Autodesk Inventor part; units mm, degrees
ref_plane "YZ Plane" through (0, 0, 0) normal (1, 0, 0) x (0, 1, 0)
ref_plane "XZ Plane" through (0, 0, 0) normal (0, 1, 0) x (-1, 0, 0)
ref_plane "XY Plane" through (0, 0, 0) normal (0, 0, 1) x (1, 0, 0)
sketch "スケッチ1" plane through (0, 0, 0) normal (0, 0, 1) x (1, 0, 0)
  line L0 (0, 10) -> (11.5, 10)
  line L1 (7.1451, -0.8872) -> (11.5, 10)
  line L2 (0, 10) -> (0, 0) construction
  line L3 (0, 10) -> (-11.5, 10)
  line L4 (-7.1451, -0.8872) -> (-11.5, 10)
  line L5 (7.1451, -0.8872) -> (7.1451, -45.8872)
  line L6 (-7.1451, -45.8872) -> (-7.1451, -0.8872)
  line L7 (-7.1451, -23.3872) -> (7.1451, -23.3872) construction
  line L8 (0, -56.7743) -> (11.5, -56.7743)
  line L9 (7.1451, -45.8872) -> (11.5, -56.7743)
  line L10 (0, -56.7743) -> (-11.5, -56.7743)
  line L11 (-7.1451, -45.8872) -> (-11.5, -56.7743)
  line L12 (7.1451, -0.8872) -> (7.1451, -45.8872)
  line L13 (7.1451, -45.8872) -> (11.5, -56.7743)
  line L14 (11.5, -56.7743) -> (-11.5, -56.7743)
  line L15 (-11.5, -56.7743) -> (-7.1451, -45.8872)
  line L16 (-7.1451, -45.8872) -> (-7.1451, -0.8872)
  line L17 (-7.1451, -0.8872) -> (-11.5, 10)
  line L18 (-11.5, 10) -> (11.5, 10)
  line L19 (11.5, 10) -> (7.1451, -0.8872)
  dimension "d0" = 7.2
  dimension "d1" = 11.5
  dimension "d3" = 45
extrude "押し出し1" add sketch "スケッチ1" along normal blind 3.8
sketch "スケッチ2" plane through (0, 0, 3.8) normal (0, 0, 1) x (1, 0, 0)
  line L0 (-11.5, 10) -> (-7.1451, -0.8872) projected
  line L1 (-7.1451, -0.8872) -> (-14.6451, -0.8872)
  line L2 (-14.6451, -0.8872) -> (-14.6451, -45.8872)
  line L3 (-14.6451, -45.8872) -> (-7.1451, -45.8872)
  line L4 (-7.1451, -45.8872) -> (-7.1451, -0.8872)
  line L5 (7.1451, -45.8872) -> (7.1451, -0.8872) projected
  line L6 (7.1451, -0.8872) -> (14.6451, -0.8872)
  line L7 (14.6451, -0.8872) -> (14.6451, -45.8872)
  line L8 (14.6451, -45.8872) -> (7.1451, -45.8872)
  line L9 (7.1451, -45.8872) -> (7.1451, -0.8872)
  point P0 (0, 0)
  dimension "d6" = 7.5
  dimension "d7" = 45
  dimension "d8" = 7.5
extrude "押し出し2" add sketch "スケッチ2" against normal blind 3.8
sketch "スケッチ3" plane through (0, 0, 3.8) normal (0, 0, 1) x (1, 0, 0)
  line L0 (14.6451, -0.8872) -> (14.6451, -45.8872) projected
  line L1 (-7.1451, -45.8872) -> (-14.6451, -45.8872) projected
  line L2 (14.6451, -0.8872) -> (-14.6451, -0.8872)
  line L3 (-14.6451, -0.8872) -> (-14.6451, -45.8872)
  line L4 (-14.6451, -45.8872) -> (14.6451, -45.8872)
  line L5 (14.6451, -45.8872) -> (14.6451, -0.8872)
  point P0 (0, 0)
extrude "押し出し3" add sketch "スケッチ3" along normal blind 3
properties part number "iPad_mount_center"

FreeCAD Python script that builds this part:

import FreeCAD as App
import Part
import Sketcher

V = App.Vector


def add_polygon(sketch, points):
    """Adds a closed chain of lines whose ends are joined by coincident constraints."""
    first, n = sketch.GeometryCount, len(points)
    for a, b in zip(points, points[1:] + points[:1]):
        sketch.addGeometry(Part.LineSegment(App.Vector(*a, 0), App.Vector(*b, 0)), False)
    for i in range(n):
        sketch.addConstraint(Sketcher.Constraint("Coincident", first + i, 2, first + (i + 1) % n, 1))

doc = App.newDocument("Part")
body = doc.addObject("PartDesign::Body", "Body")

sketch1 = body.newObject("Sketcher::SketchObject", "Sketch")
sketch1.AttachmentSupport = (doc.getObject("XY_Plane"), [""])
sketch1.MapMode = "FlatFace"
add_polygon(sketch1, [(12, 10), (-12, 10), (-7, -1), (-7, -46), (-12, -57), (12, -57), (7, -46), (7, -1)])
sketch1.addConstraint([
    Sketcher.Constraint("Horizontal", 0),
    Sketcher.Constraint("Vertical", 2),
    Sketcher.Constraint("Horizontal", 4),
    Sketcher.Constraint("Vertical", 6),
    Sketcher.Constraint("Symmetric", 2, 2, 5, 2, -2),
    Sketcher.Constraint("Parallel", 1, 5),
    Sketcher.Constraint("Parallel", 3, 7),
    Sketcher.Constraint("Horizontal", 1, 2, 6, 2),
    Sketcher.Constraint("Vertical", 0, 2, 3, 2),
    Sketcher.Constraint("Vertical", 4, 2, 7, 2),
    Sketcher.Constraint("DistanceY", 2, 2, 2, 1, 45.0),
    Sketcher.Constraint("DistanceX", 0, 2, -1, 1, 11.5),
    Sketcher.Constraint("DistanceY", -1, 1, 0, 2, 10.0),
    Sketcher.Constraint("Distance", 1, 11.726),
    Sketcher.Constraint("DistanceX", 1, 2, -1, 1, 7.145),
])
pad1 = body.newObject("PartDesign::Pad", "Pad")
pad1.Profile = sketch1
pad1.Length = 3.8

sketch2 = body.newObject("Sketcher::SketchObject", "Sketch001")
sketch2.AttachmentSupport = (doc.getObject("XY_Plane"), [""])
sketch2.MapMode = "FlatFace"
sketch2.AttachmentOffset = App.Placement(V(0, 0, 3.8), App.Rotation())
add_polygon(sketch2, [(-7, -46), (-7, -1), (-15, -1), (-15, -46)])
add_polygon(sketch2, [(7, -1), (7, -46), (15, -46), (15, -1)])
sketch2.addConstraint([
    Sketcher.Constraint("Vertical", 0),
    Sketcher.Constraint("Horizontal", 1),
    Sketcher.Constraint("Vertical", 2),
    Sketcher.Constraint("Horizontal", 3),
    Sketcher.Constraint("Vertical", 4),
    Sketcher.Constraint("Horizontal", 5),
    Sketcher.Constraint("Vertical", 6),
    Sketcher.Constraint("Horizontal", 7),
    Sketcher.Constraint("Symmetric", 3, 2, 4, 2, -2),
    Sketcher.Constraint("Symmetric", 1, 2, 6, 2, -2),
    Sketcher.Constraint("DistanceY", 0, 1, 0, 2, 45.0),
    Sketcher.Constraint("DistanceX", 1, 2, 1, 1, 7.5),
    Sketcher.Constraint("DistanceX", 0, 2, -1, 1, 7.145),
    Sketcher.Constraint("DistanceY", 0, 2, -1, 1, 0.8872),
])
pad2 = body.newObject("PartDesign::Pad", "Pad001")
pad2.Profile = sketch2
pad2.Length = 3.8
pad2.Reversed = True

sketch3 = body.newObject("Sketcher::SketchObject", "Sketch002")
sketch3.AttachmentSupport = (doc.getObject("XY_Plane"), [""])
sketch3.MapMode = "FlatFace"
sketch3.AttachmentOffset = App.Placement(V(0, 0, 3.8), App.Rotation())
add_polygon(sketch3, [(15, -46), (15, -1), (-15, -1), (-15, -46)])
sketch3.addConstraint([
    Sketcher.Constraint("Vertical", 0),
    Sketcher.Constraint("Horizontal", 1),
    Sketcher.Constraint("Vertical", 2),
    Sketcher.Constraint("Horizontal", 3),
    Sketcher.Constraint("DistanceY", 0, 1, 0, 2, 45.0),
    Sketcher.Constraint("DistanceX", 1, 2, 1, 1, 29.2902),
    Sketcher.Constraint("DistanceX", -1, 1, 0, 2, 14.645),
    Sketcher.Constraint("DistanceY", 0, 2, -1, 1, 0.8872),
])
pad3 = body.newObject("PartDesign::Pad", "Pad002")
pad3.Profile = sketch3
pad3.Length = 3

doc.recompute()
